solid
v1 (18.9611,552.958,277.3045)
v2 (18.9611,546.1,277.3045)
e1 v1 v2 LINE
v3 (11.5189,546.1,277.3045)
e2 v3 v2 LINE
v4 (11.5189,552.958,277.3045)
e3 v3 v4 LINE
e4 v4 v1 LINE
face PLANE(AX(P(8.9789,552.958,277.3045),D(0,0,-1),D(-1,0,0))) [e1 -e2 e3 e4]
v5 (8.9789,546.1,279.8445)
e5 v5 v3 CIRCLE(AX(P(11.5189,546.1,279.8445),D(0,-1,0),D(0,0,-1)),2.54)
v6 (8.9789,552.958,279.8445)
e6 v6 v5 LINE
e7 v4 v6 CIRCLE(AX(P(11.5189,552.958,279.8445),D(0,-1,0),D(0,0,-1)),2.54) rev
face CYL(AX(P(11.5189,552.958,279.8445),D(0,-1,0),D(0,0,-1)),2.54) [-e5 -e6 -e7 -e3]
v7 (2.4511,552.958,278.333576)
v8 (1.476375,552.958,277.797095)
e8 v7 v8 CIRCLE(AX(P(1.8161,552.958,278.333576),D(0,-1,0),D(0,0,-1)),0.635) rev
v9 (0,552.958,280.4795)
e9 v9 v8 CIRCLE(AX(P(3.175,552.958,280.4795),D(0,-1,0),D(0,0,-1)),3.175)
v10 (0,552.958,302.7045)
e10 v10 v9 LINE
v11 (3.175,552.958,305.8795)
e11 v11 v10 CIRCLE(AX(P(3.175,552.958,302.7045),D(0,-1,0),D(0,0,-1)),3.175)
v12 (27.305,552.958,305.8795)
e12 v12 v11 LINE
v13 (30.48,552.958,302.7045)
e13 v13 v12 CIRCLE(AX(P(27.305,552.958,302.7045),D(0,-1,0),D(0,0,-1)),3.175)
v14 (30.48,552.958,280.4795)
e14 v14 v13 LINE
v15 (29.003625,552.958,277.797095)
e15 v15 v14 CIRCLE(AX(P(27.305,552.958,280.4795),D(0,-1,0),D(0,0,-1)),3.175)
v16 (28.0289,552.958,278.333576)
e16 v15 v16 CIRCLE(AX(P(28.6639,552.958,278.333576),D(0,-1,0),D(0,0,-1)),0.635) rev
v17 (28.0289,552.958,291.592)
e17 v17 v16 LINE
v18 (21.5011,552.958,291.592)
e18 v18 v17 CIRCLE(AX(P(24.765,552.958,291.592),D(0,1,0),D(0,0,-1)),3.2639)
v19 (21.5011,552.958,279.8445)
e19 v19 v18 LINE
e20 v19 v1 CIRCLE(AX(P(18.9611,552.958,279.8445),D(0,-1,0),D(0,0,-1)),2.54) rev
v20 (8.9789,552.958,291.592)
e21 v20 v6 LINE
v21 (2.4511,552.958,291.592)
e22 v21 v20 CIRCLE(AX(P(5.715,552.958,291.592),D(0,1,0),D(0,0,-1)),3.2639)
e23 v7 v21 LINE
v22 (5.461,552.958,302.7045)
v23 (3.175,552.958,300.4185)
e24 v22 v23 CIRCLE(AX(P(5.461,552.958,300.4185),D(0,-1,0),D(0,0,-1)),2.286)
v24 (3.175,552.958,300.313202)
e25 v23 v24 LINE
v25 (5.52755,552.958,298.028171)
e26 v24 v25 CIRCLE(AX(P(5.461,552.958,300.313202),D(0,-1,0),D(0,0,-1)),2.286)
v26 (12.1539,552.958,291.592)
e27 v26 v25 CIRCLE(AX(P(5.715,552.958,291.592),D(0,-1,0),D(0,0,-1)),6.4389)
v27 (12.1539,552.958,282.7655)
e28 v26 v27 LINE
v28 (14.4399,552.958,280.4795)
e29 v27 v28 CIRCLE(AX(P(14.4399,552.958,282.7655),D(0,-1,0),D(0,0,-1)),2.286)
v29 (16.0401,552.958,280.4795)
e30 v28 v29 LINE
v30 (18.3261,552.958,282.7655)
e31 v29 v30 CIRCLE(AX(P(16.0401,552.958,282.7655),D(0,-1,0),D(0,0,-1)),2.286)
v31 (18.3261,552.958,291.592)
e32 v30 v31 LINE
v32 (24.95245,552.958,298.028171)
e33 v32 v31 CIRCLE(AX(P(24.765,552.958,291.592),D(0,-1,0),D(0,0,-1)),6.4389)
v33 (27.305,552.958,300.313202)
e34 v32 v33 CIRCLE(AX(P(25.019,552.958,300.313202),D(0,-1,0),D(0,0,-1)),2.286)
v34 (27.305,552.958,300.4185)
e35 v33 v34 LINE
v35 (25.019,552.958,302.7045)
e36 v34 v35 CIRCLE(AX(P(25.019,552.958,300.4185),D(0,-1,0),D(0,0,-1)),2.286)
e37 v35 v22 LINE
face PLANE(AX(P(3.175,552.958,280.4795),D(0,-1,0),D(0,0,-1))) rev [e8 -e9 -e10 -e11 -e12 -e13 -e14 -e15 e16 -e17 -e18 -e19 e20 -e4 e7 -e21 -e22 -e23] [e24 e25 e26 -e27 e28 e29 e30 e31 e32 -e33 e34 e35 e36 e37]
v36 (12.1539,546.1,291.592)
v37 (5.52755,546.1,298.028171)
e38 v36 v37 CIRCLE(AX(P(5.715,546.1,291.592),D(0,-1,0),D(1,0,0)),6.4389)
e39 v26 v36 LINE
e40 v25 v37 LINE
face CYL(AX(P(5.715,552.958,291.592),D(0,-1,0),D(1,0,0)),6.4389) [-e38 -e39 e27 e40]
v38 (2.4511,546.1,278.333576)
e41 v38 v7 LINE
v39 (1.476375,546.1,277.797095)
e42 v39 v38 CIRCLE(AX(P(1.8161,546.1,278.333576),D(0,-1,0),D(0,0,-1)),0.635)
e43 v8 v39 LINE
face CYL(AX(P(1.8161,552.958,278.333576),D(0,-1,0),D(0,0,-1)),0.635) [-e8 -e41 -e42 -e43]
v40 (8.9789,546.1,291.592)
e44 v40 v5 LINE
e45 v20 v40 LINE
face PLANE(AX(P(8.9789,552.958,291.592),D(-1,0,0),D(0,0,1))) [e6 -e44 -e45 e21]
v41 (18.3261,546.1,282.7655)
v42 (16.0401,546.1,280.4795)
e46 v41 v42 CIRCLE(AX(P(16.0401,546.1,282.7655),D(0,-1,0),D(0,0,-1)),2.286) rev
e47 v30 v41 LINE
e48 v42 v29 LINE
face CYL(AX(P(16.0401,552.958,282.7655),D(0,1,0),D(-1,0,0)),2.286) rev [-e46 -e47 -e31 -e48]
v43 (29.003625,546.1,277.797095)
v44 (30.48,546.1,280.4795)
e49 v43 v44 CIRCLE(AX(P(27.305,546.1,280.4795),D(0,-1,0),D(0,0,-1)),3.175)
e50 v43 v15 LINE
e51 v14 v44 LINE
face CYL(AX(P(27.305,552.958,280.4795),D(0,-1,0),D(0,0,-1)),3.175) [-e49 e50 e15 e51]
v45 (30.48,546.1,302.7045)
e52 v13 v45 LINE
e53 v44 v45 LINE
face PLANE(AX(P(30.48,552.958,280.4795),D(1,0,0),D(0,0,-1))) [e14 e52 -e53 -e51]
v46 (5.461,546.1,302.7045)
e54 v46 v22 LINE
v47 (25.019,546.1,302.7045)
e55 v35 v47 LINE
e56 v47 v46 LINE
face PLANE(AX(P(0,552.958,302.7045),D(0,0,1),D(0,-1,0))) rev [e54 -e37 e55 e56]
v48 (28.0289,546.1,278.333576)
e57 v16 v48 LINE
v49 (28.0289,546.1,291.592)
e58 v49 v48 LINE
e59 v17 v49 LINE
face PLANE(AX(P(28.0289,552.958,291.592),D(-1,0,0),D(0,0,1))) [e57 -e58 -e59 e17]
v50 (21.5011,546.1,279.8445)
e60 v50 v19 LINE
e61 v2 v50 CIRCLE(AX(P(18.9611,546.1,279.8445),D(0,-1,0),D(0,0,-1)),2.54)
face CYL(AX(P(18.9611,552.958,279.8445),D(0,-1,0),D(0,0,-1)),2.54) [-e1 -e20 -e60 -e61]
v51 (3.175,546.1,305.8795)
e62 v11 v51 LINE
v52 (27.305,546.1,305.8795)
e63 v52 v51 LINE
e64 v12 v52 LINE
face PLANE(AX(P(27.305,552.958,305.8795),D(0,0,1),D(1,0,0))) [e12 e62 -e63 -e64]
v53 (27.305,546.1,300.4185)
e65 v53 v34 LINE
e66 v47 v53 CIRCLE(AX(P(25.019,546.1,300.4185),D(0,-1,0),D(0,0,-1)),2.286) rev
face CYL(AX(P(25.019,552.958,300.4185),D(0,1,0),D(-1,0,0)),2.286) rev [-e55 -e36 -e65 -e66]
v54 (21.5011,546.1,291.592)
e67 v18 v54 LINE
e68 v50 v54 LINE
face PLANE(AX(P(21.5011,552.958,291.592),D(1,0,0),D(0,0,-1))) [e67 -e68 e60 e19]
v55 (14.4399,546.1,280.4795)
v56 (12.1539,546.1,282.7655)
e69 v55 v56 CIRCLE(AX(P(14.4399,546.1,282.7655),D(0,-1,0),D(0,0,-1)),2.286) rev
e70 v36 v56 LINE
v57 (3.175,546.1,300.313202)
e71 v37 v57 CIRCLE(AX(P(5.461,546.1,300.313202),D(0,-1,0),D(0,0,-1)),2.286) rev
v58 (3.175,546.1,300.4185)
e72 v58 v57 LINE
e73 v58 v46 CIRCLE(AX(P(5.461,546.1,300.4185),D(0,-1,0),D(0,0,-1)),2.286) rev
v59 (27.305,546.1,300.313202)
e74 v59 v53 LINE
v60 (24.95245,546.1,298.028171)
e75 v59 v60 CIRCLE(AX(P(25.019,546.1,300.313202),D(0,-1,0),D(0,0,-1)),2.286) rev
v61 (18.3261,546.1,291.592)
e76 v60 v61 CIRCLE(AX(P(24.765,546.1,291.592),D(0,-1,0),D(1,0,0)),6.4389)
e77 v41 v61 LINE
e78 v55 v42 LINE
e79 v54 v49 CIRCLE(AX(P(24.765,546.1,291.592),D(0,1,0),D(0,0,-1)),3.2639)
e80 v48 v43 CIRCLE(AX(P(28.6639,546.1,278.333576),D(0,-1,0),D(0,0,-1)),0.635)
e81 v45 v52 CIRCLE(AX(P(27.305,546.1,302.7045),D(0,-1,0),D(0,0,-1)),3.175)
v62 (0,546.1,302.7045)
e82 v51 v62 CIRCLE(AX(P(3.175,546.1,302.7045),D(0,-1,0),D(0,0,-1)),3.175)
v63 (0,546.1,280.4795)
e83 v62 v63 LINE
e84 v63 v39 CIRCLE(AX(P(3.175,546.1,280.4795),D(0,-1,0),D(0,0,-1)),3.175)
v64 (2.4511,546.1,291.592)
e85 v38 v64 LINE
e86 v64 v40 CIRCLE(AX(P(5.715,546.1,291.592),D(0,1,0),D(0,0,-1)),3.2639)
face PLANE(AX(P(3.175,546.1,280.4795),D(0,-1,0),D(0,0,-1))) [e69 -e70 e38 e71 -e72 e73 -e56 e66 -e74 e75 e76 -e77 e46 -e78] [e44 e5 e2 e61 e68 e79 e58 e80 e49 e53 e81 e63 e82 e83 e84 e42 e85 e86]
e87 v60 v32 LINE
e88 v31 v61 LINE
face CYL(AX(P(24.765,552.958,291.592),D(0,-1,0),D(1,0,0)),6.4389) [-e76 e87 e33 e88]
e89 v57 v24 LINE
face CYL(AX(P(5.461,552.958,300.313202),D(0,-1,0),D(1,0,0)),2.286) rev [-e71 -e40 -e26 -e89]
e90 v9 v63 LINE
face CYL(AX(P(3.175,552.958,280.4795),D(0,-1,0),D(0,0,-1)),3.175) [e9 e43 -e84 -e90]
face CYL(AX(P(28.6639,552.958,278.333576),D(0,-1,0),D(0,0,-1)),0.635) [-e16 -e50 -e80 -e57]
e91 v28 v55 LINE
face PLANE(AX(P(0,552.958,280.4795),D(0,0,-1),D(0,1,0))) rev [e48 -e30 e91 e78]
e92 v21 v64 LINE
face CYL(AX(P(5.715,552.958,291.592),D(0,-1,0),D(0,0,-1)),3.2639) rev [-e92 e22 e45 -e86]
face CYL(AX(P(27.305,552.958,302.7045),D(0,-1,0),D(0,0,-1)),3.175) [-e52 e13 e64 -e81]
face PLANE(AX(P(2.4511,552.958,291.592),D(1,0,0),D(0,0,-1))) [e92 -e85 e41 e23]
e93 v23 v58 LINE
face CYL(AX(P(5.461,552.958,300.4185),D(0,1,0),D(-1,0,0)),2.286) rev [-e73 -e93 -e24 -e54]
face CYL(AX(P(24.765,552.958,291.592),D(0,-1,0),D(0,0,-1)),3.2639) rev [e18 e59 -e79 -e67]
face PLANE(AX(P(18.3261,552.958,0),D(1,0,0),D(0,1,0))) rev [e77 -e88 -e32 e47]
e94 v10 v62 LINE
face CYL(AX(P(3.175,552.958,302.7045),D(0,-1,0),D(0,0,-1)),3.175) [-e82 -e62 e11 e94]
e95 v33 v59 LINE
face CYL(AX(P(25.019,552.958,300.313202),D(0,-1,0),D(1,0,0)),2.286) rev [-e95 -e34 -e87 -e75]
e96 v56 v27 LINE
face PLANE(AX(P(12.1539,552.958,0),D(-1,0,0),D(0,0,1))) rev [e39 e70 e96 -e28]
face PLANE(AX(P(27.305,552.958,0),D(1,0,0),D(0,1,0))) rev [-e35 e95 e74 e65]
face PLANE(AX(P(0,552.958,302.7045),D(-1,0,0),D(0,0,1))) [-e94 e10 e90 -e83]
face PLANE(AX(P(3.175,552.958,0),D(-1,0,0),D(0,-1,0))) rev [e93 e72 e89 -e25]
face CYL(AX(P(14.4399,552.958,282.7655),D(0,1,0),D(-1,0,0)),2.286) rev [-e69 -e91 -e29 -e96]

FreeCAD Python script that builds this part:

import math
import FreeCAD as App
import Part
import Sketcher

V = App.Vector
Q = App.Units.Quantity


def edges_at(feature, points):
    """Names of the edges that pass closest to the given points."""
    edges = feature.Shape.Edges
    near = lambda p: min(range(len(edges)), key=lambda i: edges[i].distToShape(Part.Vertex(*p))[0])
    return sorted({f"Edge{near(p) + 1}" for p in points})

doc = App.newDocument("Part")
body = doc.addObject("PartDesign::Body", "Body")

sketch1 = body.newObject("Sketcher::SketchObject", "Sketch")
sketch1.AttachmentSupport = (doc.getObject("XZ_Plane"), [""])
sketch1.MapMode = "FlatFace"
sketch1.AttachmentOffset = App.Placement(V(0, 0, -21.5 * 25.4), App.Rotation())
sketch1.addGeometry(Part.LineSegment(V(21.5, 277.3, 0), V(21.5, 291.6, 0)), False)
sketch1.addGeometry(Part.ArcOfCircle(Part.Circle(V(24.8, 291.6, 0), V(0, 0, 1), 3.3), math.radians(0), math.radians(180)), False)
sketch1.addGeometry(Part.LineSegment(V(28, 291.6, 0), V(28, 277.4, 0)), False)
sketch1.addGeometry(Part.ArcOfCircle(Part.Circle(V(27.3, 280.5, 0), V(0, 0, 1), 3.2), math.radians(-77), math.radians(0)), False)
sketch1.addGeometry(Part.LineSegment(V(30.5, 280.5, 0), V(30.5, 302.7, 0)), False)
sketch1.addGeometry(Part.ArcOfCircle(Part.Circle(V(27.3, 302.7, 0), V(0, 0, 1), 3.2), math.radians(0), math.radians(90)), False)
sketch1.addGeometry(Part.LineSegment(V(27.3, 305.9, 0), V(3.2, 305.9, 0)), False)
sketch1.addGeometry(Part.ArcOfCircle(Part.Circle(V(3.2, 302.7, 0), V(0, 0, 1), 3.2), math.radians(90), math.radians(180)), False)
sketch1.addGeometry(Part.LineSegment(V(0, 302.7, 0), V(0, 280.5, 0)), False)
sketch1.addGeometry(Part.ArcOfCircle(Part.Circle(V(3.2, 280.5, 0), V(0, 0, 1), 3.2), math.radians(180), math.radians(257)), False)
sketch1.addGeometry(Part.LineSegment(V(2.5, 277.4, 0), V(2.5, 291.6, 0)), False)
sketch1.addGeometry(Part.ArcOfCircle(Part.Circle(V(5.7, 291.6, 0), V(0, 0, 1), 3.3), math.radians(0), math.radians(180)), False)
sketch1.addGeometry(Part.LineSegment(V(9, 291.6, 0), V(9, 277.3, 0)), False)
sketch1.addGeometry(Part.LineSegment(V(9, 277.3, 0), V(21.5, 277.3, 0)), False)
sketch1.addConstraint(Sketcher.Constraint("Tangent", 0, 2, 1, 2))
sketch1.addConstraint(Sketcher.Constraint("Tangent", 1, 1, 2, 1))
sketch1.addConstraint(Sketcher.Constraint("Coincident", 2, 2, 3, 1))
sketch1.addConstraint(Sketcher.Constraint("Tangent", 3, 2, 4, 1))
sketch1.addConstraint(Sketcher.Constraint("Tangent", 4, 2, 5, 1))
sketch1.addConstraint(Sketcher.Constraint("Tangent", 5, 2, 6, 1))
sketch1.addConstraint(Sketcher.Constraint("Tangent", 6, 2, 7, 1))
sketch1.addConstraint(Sketcher.Constraint("Tangent", 7, 2, 8, 1))
sketch1.addConstraint(Sketcher.Constraint("Tangent", 8, 2, 9, 1))
sketch1.addConstraint(Sketcher.Constraint("Coincident", 9, 2, 10, 1))
sketch1.addConstraint(Sketcher.Constraint("Tangent", 10, 2, 11, 2))
sketch1.addConstraint(Sketcher.Constraint("Tangent", 11, 1, 12, 1))
sketch1.addConstraint(Sketcher.Constraint("Coincident", 12, 2, 13, 1))
sketch1.addConstraint(Sketcher.Constraint("Coincident", 13, 2, 0, 1))
sketch1.addConstraint(Sketcher.Constraint("Vertical", 0))
sketch1.addConstraint(Sketcher.Constraint("Vertical", 2))
sketch1.addConstraint(Sketcher.Constraint("Vertical", 4))
sketch1.addConstraint(Sketcher.Constraint("Horizontal", 6))
sketch1.addConstraint(Sketcher.Constraint("Vertical", 8))
sketch1.addConstraint(Sketcher.Constraint("Vertical", 10))
sketch1.addConstraint(Sketcher.Constraint("Vertical", 12))
sketch1.addConstraint(Sketcher.Constraint("Horizontal", 13))
sketch1.addConstraint(Sketcher.Constraint("Equal", 3, 5))
sketch1.addConstraint(Sketcher.Constraint("Equal", 5, 7))
sketch1.addConstraint(Sketcher.Constraint("Equal", 7, 9))
sketch1.addConstraint(Sketcher.Constraint("Equal", 1, 11))
sketch1.addConstraint(Sketcher.Constraint("PointOnObject", 7, 2, -2))
sketch1.addConstraint(Sketcher.Constraint("Horizontal", 3, 3, 9, 3))
sketch1.addConstraint(Sketcher.Constraint("Horizontal", 1, 3, 11, 3))
sketch1.addConstraint(Sketcher.Constraint("Horizontal", 2, 2, 9, 2))
sketch1.addConstraint(Sketcher.Constraint("Radius", 3, Q("0.125 in")))
sketch1.addConstraint(Sketcher.Constraint("DistanceX", 6, 2, 6, 1, Q("0.95 in")))
sketch1.addConstraint(Sketcher.Constraint("Radius", 1, Q("0.1285 in")))
sketch1.addConstraint(Sketcher.Constraint("DistanceX", 1, 3, 3, 3, Q("0.1 in")))
sketch1.addConstraint(Sketcher.Constraint("DistanceY", 0, 1, 0, 2, Q("0.5625 in")))
sketch1.addConstraint(Sketcher.Constraint("DistanceY", 4, 1, 4, 2, Q("0.875 in")))
sketch1.addConstraint(Sketcher.Constraint("DistanceY", -1, 1, 1, 3, Q("11.48 in")))
sketch1.addConstraint(Sketcher.Constraint("DistanceY", 3, 3, 1, 3, Q("0.4375 in")))
pad1 = body.newObject("PartDesign::Pad", "Pad")
pad1.Profile = sketch1
pad1.Length = Q("0.27 in")
pad1.Reversed = True
doc.recompute()

fillet = body.newObject("PartDesign::Fillet", "Fillet")
fillet.Base = (pad1, edges_at(pad1, [(21.501, 549.529, 277.305), (8.979, 549.529, 277.305)]))
fillet.Radius = Q("0.1 in")
doc.recompute()

fillet2 = body.newObject("PartDesign::Fillet", "Fillet001")
fillet2.Base = (fillet, edges_at(fillet, [(28.029, 549.529, 277.388), (2.451, 549.529, 277.388)]))
fillet2.Radius = Q("0.025 in")

sketch2 = body.newObject("Sketcher::SketchObject", "Sketch001")
sketch2.AttachmentSupport = (doc.getObject("XZ_Plane"), [""])
sketch2.MapMode = "FlatFace"
sketch2.AttachmentOffset = App.Placement(V(0, 0, -21.5 * 25.4), App.Rotation())
sketch2.addGeometry(Part.LineSegment(V(27, 298, 0), V(27, 303, 0)), False)
sketch2.addGeometry(Part.LineSegment(V(27, 303, 0), V(3, 303, 0)), False)
sketch2.addGeometry(Part.LineSegment(V(3, 303, 0), V(3, 298, 0)), False)
sketch2.addGeometry(Part.ArcOfCircle(Part.Circle(V(6, 292, 0), V(0, 0, 1), 6), math.radians(0), math.radians(113)), False)
sketch2.addGeometry(Part.LineSegment(V(12, 292, 0), V(12, 280, 0)), False)
sketch2.addGeometry(Part.LineSegment(V(12, 280, 0), V(18, 280, 0)), False)
sketch2.addGeometry(Part.LineSegment(V(18, 280, 0), V(18, 292, 0)), False)
sketch2.addGeometry(Part.ArcOfCircle(Part.Circle(V(25, 292, 0), V(0, 0, 1), 6), math.radians(67), math.radians(180)), False)
sketch2.addConstraint(Sketcher.Constraint("Coincident", 0, 2, 1, 1))
sketch2.addConstraint(Sketcher.Constraint("Coincident", 1, 2, 2, 1))
sketch2.addConstraint(Sketcher.Constraint("Coincident", 2, 2, 3, 2))
sketch2.addConstraint(Sketcher.Constraint("Tangent", 3, 1, 4, 1))
sketch2.addConstraint(Sketcher.Constraint("Coincident", 4, 2, 5, 1))
sketch2.addConstraint(Sketcher.Constraint("Coincident", 5, 2, 6, 1))
sketch2.addConstraint(Sketcher.Constraint("Tangent", 6, 2, 7, 2))
sketch2.addConstraint(Sketcher.Constraint("Coincident", 7, 1, 0, 1))
sketch2.addConstraint(Sketcher.Constraint("Vertical", 0))
sketch2.addConstraint(Sketcher.Constraint("Horizontal", 1))
sketch2.addConstraint(Sketcher.Constraint("Vertical", 2))
sketch2.addConstraint(Sketcher.Constraint("Vertical", 4))
sketch2.addConstraint(Sketcher.Constraint("Horizontal", 5))
sketch2.addConstraint(Sketcher.Constraint("Vertical", 6))
sketch2.addConstraint(Sketcher.Constraint("Equal", 3, 7))
sketch2.addConstraint(Sketcher.Constraint("Horizontal", 3, 3, 7, 3))
sketch2.addConstraint(Sketcher.Constraint("Horizontal", 2, 2, 7, 1))
sketch2.addConstraint(Sketcher.Constraint("DistanceX", 1, 2, 1, 1, Q("0.95 in")))
sketch2.addConstraint(Sketcher.Constraint("Radius", 3, Q("0.2535 in")))
sketch2.addConstraint(Sketcher.Constraint("DistanceX", 7, 3, 0, 2, Q("0.1 in")))
sketch2.addConstraint(Sketcher.Constraint("DistanceY", 4, 2, 4, 1, Q("0.4375 in")))
sketch2.addConstraint(Sketcher.Constraint("DistanceY", -1, 1, 3, 3, Q("11.48 in")))
sketch2.addConstraint(Sketcher.Constraint("DistanceX", -1, 1, 3, 3, Q("0.225 in")))
sketch2.addConstraint(Sketcher.Constraint("DistanceY", 7, 3, 0, 2, Q("0.4375 in")))
pocket1 = body.newObject("PartDesign::Pocket", "Pocket")
pocket1.Profile = sketch2
pocket1.Type = "ThroughAll"
pocket1.Midplane = True
doc.recompute()

fillet3 = body.newObject("PartDesign::Fillet", "Fillet002")
fillet3.Base = (pocket1, edges_at(pocket1, [
    (27.305, 549.529, 297.509),
    (18.326, 549.529, 280.479),
    (12.154, 549.529, 280.479),
    (3.175, 549.529, 297.509),
    (3.175, 549.529, 302.704),
    (27.305, 549.529, 302.704),
]))
fillet3.Radius = Q("0.09 in")

doc.recompute()
